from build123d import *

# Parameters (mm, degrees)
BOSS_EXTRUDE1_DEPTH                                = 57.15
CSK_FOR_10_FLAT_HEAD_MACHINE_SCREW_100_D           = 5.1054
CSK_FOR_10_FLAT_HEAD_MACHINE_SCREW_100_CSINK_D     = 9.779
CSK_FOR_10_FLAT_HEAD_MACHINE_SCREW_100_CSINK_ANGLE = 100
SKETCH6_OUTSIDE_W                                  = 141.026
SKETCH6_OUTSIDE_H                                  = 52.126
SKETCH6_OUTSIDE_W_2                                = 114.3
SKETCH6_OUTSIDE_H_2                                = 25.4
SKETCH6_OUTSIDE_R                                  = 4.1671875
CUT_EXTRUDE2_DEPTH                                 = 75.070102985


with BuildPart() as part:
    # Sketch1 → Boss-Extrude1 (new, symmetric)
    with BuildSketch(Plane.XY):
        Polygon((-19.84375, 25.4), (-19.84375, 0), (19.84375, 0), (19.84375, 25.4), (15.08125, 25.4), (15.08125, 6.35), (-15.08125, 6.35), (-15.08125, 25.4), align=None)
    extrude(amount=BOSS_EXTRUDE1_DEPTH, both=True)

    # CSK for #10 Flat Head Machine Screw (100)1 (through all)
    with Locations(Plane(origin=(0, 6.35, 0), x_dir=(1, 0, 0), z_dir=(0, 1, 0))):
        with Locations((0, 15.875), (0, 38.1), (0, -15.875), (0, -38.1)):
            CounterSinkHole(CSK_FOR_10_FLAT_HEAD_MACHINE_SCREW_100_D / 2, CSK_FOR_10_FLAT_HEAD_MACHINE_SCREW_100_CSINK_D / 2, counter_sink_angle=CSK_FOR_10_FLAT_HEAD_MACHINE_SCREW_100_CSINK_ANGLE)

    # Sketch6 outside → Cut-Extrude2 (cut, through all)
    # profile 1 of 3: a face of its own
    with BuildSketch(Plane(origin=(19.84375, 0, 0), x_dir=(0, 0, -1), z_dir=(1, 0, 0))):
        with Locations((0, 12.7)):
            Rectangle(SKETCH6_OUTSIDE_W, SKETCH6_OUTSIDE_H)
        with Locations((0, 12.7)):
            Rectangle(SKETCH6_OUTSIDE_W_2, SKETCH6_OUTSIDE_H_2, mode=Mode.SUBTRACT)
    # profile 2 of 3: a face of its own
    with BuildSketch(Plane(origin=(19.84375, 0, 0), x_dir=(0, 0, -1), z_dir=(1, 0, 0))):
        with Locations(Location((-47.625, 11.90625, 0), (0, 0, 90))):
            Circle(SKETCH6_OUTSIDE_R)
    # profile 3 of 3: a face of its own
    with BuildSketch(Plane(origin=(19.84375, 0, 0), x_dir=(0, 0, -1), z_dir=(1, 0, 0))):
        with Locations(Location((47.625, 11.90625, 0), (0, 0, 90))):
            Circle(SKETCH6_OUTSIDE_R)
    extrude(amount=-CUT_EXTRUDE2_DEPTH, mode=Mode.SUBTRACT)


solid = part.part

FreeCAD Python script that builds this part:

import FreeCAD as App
import Part
import Sketcher
from FreeCAD import Vector
Q = App.Units.Quantity


def add_polygon(sketch, points):
    """Adds a closed chain of lines whose ends are joined by coincident constraints."""
    first, n = sketch.GeometryCount, len(points)
    for a, b in zip(points, points[1:] + points[:1]):
        sketch.addGeometry(Part.LineSegment(App.Vector(*a, 0), App.Vector(*b, 0)), False)
    for i in range(n):
        sketch.addConstraint(Sketcher.Constraint("Coincident", first + i, 2, first + (i + 1) % n, 1))

doc = App.newDocument("Part")
body = doc.addObject("PartDesign::Body", "Body")

# Sketch on XY plane
sketch1 = body.newObject("Sketcher::SketchObject", "Sketch")
sketch1.AttachmentSupport = (doc.getObject("XY_Plane"), [""])
sketch1.MapMode = "FlatFace"
add_polygon(sketch1, [(-19.8, 25.4), (-19.8, 0), (19.8, 0), (19.8, 25.4), (15.1, 25.4), (15.1, 6.3), (-15.1, 6.3), (-15.1, 25.4)])  # lines 0-7
sketch1.addConstraint([
    Sketcher.Constraint("Vertical", 0),
    Sketcher.Constraint("Horizontal", 1),
    Sketcher.Constraint("Vertical", 2),
    Sketcher.Constraint("Horizontal", 3),
    Sketcher.Constraint("Vertical", 4),
    Sketcher.Constraint("Horizontal", 5),
    Sketcher.Constraint("Vertical", 6),
    Sketcher.Constraint("Horizontal", 7),
    Sketcher.Constraint("Symmetric", 0, 2, 1, 2, -1, 1),
    Sketcher.Constraint("Symmetric", 3, 2, 6, 2, -2),
    Sketcher.Constraint("DistanceY", 0, 2, 0, 1, Q("1 in")),
    Sketcher.Constraint("DistanceY", 4, 2, 4, 1, Q("0.75 in")),
    Sketcher.Constraint("DistanceX", 1, 1, 1, 2, Q("1.5625 in")),
    Sketcher.Constraint("DistanceX", 3, 2, 3, 1, Q("0.1875 in")),
])
pad1 = body.newObject("PartDesign::Pad", "Pad")
pad1.Profile = sketch1
pad1.Length = Q("4.5 in")
pad1.Midplane = True

# Sketch on XZ plane
sketch2 = body.newObject("Sketcher::SketchObject", "Sketch001")
sketch2.AttachmentSupport = (doc.getObject("XZ_Plane"), [""])
sketch2.MapMode = "FlatFace"
sketch2.AttachmentOffset = App.Placement(Vector(0, 0, -0.25 * 25.4), App.Rotation())
sketch2.addGeometry([
    Part.Circle(Vector(0, -15.9, 0), Vector(0, 0, 1), 2.6),
    Part.Circle(Vector(0, -38.1, 0), Vector(0, 0, 1), 2.6),
    Part.Circle(Vector(0, 15.9, 0), Vector(0, 0, 1), 2.6),
    Part.Circle(Vector(0, 38.1, 0), Vector(0, 0, 1), 2.6),
], False)
sketch2.addConstraint([
    Sketcher.Constraint("Equal", 0, 1),
    Sketcher.Constraint("Equal", 1, 2),
    Sketcher.Constraint("Equal", 2, 3),
    Sketcher.Constraint("Symmetric", 0, 3, 2, 3, -1, 1),
    Sketcher.Constraint("Symmetric", 1, 3, 3, 3, -1, 1),
    Sketcher.Constraint("PointOnObject", 0, 3, -2),
    Sketcher.Constraint("PointOnObject", 1, 3, -2),
    Sketcher.Constraint("Diameter", 0, Q("0.201 in")),
    Sketcher.Constraint("DistanceY", 1, 3, 3, 3, Q("3 in")),
    Sketcher.Constraint("DistanceY", 0, 3, 2, 3, Q("1.25 in")),
])
doc.recompute()
hole = body.newObject("PartDesign::Hole", "Hole")
hole.Profile = sketch2
hole.ThreadType = "None"
hole.Diameter = Q("0.201 in")
hole.DepthType = "ThroughAll"
hole.HoleCutType = "Countersink"
hole.HoleCutDiameter = Q("0.385 in")
hole.HoleCutCountersinkAngle = 100
hole.Reversed = True

# Sketch on YZ plane
sketch3 = body.newObject("Sketcher::SketchObject", "Sketch002")
sketch3.AttachmentSupport = (doc.getObject("YZ_Plane"), [""])
sketch3.MapMode = "FlatFace"
sketch3.AttachmentOffset = App.Placement(Vector(0, 0, 0.78125 * 25.4), App.Rotation())
add_polygon(sketch3, [(38.8, 70.5), (-13.4, 70.5), (-13.4, -70.5), (38.8, -70.5)])  # lines 0-3
add_polygon(sketch3, [(0, -57.1), (0, 57.1), (25.4, 57.1), (25.4, -57.1)])  # lines 4-7
sketch3.addGeometry(Part.Circle(Vector(11.9, 47.6, 0), Vector(0, 0, 1), 4.2), False)  # 8
sketch3.addGeometry(Part.Circle(Vector(11.9, -47.6, 0), Vector(0, 0, 1), 4.2), False)  # 9
sketch3.addConstraint([
    Sketcher.Constraint("Horizontal", 0),
    Sketcher.Constraint("Vertical", 1),
    Sketcher.Constraint("Horizontal", 2),
    Sketcher.Constraint("Vertical", 3),
    Sketcher.Constraint("Vertical", 4),
    Sketcher.Constraint("Horizontal", 5),
    Sketcher.Constraint("Vertical", 6),
    Sketcher.Constraint("Horizontal", 7),
    Sketcher.Constraint("Equal", 8, 9),
    Sketcher.Constraint("Symmetric", 4, 2, 7, 2, -1, 1),
    Sketcher.Constraint("Symmetric", 8, 3, 9, 3, -1),
    Sketcher.Constraint("DistanceX", 5, 1, 5, 2, Q("1 in")),
    Sketcher.Constraint("Diameter", 8, Q("0.328125 in")),
    Sketcher.Constraint("DistanceY", 4, 1, 4, 2, Q("4.5 in")),
    Sketcher.Constraint("DistanceY", 9, 3, 8, 3, Q("3.75 in")),
    Sketcher.Constraint("DistanceX", -1, 1, 8, 3, Q("0.46875 in")),
    Sketcher.Constraint("DistanceX", 0, 2, 0, 1, Q("52.126 mm")),
    Sketcher.Constraint("DistanceY", 1, 2, 1, 1, Q("141.026 mm")),
    Sketcher.Constraint("DistanceX", 0, 2, -1, 1, Q("13.363 mm")),
    Sketcher.Constraint("DistanceY", -1, 1, 0, 2, Q("70.513 mm")),
])
pocket1 = body.newObject("PartDesign::Pocket", "Pocket")
pocket1.Profile = sketch3
pocket1.Length = 75.070103

doc.recompute()
